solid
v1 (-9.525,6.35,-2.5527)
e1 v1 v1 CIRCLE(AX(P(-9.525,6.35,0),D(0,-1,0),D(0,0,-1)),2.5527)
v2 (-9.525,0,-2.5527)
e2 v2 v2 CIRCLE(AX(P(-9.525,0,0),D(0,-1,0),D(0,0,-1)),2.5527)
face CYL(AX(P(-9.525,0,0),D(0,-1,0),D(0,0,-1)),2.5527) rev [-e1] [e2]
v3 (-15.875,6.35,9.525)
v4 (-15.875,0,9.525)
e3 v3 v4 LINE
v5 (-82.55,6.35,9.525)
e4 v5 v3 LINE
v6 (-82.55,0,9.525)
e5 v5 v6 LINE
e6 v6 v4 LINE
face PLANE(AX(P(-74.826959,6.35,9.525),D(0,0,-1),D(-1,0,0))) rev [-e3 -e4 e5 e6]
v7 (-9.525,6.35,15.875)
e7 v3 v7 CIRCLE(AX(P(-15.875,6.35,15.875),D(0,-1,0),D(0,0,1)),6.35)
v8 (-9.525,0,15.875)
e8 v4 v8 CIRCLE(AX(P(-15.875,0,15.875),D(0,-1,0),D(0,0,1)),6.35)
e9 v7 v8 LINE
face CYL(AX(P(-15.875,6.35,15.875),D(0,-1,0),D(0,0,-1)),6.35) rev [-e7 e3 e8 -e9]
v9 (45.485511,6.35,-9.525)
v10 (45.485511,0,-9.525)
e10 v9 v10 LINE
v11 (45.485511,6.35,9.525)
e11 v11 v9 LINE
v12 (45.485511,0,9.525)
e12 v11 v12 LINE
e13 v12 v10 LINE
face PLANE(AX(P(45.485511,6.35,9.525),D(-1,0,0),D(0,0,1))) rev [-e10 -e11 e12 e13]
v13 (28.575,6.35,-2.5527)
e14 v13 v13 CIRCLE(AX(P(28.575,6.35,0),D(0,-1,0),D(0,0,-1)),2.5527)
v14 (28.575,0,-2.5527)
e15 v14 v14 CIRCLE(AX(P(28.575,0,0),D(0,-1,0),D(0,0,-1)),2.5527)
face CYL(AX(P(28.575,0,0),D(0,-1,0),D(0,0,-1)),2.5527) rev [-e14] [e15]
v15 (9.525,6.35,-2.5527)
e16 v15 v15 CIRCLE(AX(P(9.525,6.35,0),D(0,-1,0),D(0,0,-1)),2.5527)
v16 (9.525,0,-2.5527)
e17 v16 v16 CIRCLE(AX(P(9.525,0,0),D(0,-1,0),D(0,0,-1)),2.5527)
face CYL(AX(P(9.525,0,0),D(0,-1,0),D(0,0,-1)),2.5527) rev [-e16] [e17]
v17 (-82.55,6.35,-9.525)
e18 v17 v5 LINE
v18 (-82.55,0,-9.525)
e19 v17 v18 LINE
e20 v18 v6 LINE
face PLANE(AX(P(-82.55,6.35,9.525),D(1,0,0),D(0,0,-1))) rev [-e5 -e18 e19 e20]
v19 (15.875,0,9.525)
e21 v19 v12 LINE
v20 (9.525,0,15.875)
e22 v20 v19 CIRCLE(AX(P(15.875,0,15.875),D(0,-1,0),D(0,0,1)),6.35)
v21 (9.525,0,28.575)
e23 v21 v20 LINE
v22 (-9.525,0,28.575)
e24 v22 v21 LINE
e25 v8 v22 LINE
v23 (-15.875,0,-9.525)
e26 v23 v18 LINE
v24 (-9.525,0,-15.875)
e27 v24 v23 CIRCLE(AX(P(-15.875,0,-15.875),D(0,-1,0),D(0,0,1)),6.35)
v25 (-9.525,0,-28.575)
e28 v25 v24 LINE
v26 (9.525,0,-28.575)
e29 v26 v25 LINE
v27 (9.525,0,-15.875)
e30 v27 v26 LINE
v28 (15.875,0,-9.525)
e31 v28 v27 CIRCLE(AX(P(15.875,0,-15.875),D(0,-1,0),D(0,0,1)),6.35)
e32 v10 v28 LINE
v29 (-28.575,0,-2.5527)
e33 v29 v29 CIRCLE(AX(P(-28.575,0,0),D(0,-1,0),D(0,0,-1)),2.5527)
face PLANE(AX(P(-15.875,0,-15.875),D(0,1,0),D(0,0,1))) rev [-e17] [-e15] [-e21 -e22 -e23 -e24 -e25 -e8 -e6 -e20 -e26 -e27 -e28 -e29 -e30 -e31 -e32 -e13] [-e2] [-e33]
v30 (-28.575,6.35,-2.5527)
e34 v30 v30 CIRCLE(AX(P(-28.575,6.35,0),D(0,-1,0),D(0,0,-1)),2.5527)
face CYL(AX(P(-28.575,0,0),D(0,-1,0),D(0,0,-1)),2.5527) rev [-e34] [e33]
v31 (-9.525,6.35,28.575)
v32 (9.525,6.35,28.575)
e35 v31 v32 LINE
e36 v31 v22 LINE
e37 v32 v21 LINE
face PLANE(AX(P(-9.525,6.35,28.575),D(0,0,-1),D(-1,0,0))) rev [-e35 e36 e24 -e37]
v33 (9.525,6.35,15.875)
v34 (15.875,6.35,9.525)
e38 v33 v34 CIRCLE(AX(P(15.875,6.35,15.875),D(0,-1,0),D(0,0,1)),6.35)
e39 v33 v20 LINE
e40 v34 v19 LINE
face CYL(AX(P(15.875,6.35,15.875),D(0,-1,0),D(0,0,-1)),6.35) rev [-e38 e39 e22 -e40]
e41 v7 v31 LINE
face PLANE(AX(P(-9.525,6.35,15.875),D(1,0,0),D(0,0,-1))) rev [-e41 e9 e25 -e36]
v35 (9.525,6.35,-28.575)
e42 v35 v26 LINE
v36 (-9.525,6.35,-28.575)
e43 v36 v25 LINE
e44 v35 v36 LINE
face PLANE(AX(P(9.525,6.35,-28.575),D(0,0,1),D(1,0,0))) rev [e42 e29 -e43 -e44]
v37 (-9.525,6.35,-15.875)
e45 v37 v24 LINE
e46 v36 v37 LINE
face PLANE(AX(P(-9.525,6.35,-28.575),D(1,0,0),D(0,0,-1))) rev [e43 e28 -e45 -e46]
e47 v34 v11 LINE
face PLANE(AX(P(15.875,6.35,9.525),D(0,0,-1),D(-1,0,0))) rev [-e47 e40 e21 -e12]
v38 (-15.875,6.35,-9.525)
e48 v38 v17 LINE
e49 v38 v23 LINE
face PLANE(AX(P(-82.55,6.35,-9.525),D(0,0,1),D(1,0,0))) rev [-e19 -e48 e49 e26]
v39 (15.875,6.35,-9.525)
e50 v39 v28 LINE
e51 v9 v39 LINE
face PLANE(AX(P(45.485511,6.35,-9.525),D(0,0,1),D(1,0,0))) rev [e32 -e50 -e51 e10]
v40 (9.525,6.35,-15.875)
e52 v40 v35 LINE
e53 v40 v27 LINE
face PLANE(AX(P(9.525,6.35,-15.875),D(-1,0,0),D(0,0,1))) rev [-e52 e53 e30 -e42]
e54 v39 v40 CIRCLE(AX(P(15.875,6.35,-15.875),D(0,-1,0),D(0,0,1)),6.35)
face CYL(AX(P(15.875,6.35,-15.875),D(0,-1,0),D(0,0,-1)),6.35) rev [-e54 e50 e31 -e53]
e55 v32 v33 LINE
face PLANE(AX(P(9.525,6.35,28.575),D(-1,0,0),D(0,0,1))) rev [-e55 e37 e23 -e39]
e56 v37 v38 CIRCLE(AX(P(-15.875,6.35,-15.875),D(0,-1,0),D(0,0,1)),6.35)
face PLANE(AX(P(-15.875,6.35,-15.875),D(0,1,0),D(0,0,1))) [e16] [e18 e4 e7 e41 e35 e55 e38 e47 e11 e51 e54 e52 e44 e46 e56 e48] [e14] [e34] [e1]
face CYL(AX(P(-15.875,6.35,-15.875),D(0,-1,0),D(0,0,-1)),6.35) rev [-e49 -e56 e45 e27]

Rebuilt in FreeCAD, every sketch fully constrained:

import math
import FreeCAD as App
import Part
import Sketcher

V = App.Vector
Q = App.Units.Quantity

doc = App.newDocument("Part")
body = doc.addObject("PartDesign::Body", "Body")

# Sketch on XZ plane
sketch1 = body.newObject("Sketcher::SketchObject", "Sketch")
sketch1.AttachmentSupport = (doc.getObject("XZ_Plane"), [""])
sketch1.MapMode = "FlatFace"
sketch1.addGeometry([
    Part.ArcOfCircle(Part.Circle(V(-16, 16, 0), V(0, 0, 1), 6), math.radians(-90), math.radians(0)),  # 0
    Part.LineSegment(V(-10, 16, 0), V(-10, 29, 0)),  # 1
    Part.LineSegment(V(-10, 29, 0), V(10, 29, 0)),  # 2
    Part.LineSegment(V(10, 29, 0), V(10, 16, 0)),  # 3
    Part.ArcOfCircle(Part.Circle(V(16, 16, 0), V(0, 0, 1), 6), math.radians(180), math.radians(270)),  # 4
    Part.LineSegment(V(16, 10, 0), V(45, 10, 0)),  # 5
    Part.LineSegment(V(45, 10, 0), V(45, -10, 0)),  # 6
    Part.LineSegment(V(45, -10, 0), V(16, -10, 0)),  # 7
    Part.ArcOfCircle(Part.Circle(V(16, -16, 0), V(0, 0, 1), 6), math.radians(90), math.radians(180)),  # 8
    Part.LineSegment(V(10, -16, 0), V(10, -29, 0)),  # 9
    Part.LineSegment(V(10, -29, 0), V(-10, -29, 0)),  # 10
    Part.LineSegment(V(-10, -29, 0), V(-10, -16, 0)),  # 11
    Part.ArcOfCircle(Part.Circle(V(-16, -16, 0), V(0, 0, 1), 6), math.radians(0), math.radians(90)),  # 12
    Part.LineSegment(V(-16, -10, 0), V(-83, -10, 0)),  # 13
    Part.LineSegment(V(-83, -10, 0), V(-83, 10, 0)),  # 14
    Part.LineSegment(V(-83, 10, 0), V(-16, 10, 0)),  # 15
], False)
sketch1.addConstraint([
    Sketcher.Constraint("Tangent", 0, 2, 1, 1),
    Sketcher.Constraint("Coincident", 1, 2, 2, 1),
    Sketcher.Constraint("Coincident", 2, 2, 3, 1),
    Sketcher.Constraint("Tangent", 3, 2, 4, 1),
    Sketcher.Constraint("Tangent", 4, 2, 5, 1),
    Sketcher.Constraint("Coincident", 5, 2, 6, 1),
    Sketcher.Constraint("Coincident", 6, 2, 7, 1),
    Sketcher.Constraint("Tangent", 7, 2, 8, 1),
    Sketcher.Constraint("Tangent", 8, 2, 9, 1),
    Sketcher.Constraint("Coincident", 9, 2, 10, 1),
    Sketcher.Constraint("Coincident", 10, 2, 11, 1),
    Sketcher.Constraint("Tangent", 11, 2, 12, 1),
    Sketcher.Constraint("Tangent", 12, 2, 13, 1),
    Sketcher.Constraint("Coincident", 13, 2, 14, 1),
    Sketcher.Constraint("Coincident", 14, 2, 15, 1),
    Sketcher.Constraint("Tangent", 15, 2, 0, 1),
    Sketcher.Constraint("Vertical", 1),
    Sketcher.Constraint("Horizontal", 2),
    Sketcher.Constraint("Vertical", 3),
    Sketcher.Constraint("Horizontal", 5),
    Sketcher.Constraint("Vertical", 6),
    Sketcher.Constraint("Horizontal", 7),
    Sketcher.Constraint("Vertical", 9),
    Sketcher.Constraint("Horizontal", 10),
    Sketcher.Constraint("Vertical", 11),
    Sketcher.Constraint("Horizontal", 13),
    Sketcher.Constraint("Vertical", 14),
    Sketcher.Constraint("Horizontal", 15),
    Sketcher.Constraint("Equal", 0, 4),
    Sketcher.Constraint("Equal", 4, 8),
    Sketcher.Constraint("Equal", 8, 12),
    Sketcher.Constraint("Symmetric", 0, 3, 8, 3, -1, 1),
    Sketcher.Constraint("Symmetric", 4, 3, 12, 3, -1, 1),
    Sketcher.Constraint("Symmetric", 0, 3, 4, 3, -2),
    Sketcher.Constraint("Equal", 10, 6),
    Sketcher.Constraint("Equal", 3, 9),
    Sketcher.Constraint("Radius", 0, Q("0.25 in")),
    Sketcher.Constraint("DistanceY", 1, 1, 1, 2, Q("0.5 in")),
    Sketcher.Constraint("DistanceX", 0, 2, 4, 3, Q("1 in")),
    Sketcher.Constraint("DistanceX", 13, 2, 13, 1, Q("2.625 in")),
    Sketcher.Constraint("DistanceX", 5, 1, 5, 2, Q("29.610511 mm")),
])
pad1 = body.newObject("PartDesign::Pad", "Pad")
pad1.Profile = sketch1
pad1.Length = Q("0.25 in")
pad1.Reversed = True

# Sketch on XZ plane
sketch2 = body.newObject("Sketcher::SketchObject", "Sketch001")
sketch2.AttachmentSupport = (doc.getObject("XZ_Plane"), [""])
sketch2.MapMode = "FlatFace"
sketch2.addGeometry(Part.Circle(V(-28.6, 0, 0), V(0, 0, 1), 2.6), False)
sketch2.addConstraint([
    Sketcher.Constraint("PointOnObject", 0, 3, -1),
    Sketcher.Constraint("Diameter", 0, Q("0.201 in")),
    Sketcher.Constraint("DistanceX", 0, 3, -1, 1, Q("1.125 in")),
])
doc.recompute()
hole = body.newObject("PartDesign::Hole", "Hole")
hole.Profile = sketch2
hole.ThreadType = "None"
hole.Diameter = Q("0.201 in")
hole.DepthType = "ThroughAll"
doc.recompute()

linearpattern = body.newObject("PartDesign::LinearPattern", "LinearPattern")
linearpattern.Originals = [hole]
linearpattern.Direction = (doc.getObject("X_Axis"), [""])
linearpattern.Mode = "offset"
linearpattern.Offset = Q("0.75 in")
linearpattern.Occurrences = 4
body.Tip = linearpattern

doc.recompute()
